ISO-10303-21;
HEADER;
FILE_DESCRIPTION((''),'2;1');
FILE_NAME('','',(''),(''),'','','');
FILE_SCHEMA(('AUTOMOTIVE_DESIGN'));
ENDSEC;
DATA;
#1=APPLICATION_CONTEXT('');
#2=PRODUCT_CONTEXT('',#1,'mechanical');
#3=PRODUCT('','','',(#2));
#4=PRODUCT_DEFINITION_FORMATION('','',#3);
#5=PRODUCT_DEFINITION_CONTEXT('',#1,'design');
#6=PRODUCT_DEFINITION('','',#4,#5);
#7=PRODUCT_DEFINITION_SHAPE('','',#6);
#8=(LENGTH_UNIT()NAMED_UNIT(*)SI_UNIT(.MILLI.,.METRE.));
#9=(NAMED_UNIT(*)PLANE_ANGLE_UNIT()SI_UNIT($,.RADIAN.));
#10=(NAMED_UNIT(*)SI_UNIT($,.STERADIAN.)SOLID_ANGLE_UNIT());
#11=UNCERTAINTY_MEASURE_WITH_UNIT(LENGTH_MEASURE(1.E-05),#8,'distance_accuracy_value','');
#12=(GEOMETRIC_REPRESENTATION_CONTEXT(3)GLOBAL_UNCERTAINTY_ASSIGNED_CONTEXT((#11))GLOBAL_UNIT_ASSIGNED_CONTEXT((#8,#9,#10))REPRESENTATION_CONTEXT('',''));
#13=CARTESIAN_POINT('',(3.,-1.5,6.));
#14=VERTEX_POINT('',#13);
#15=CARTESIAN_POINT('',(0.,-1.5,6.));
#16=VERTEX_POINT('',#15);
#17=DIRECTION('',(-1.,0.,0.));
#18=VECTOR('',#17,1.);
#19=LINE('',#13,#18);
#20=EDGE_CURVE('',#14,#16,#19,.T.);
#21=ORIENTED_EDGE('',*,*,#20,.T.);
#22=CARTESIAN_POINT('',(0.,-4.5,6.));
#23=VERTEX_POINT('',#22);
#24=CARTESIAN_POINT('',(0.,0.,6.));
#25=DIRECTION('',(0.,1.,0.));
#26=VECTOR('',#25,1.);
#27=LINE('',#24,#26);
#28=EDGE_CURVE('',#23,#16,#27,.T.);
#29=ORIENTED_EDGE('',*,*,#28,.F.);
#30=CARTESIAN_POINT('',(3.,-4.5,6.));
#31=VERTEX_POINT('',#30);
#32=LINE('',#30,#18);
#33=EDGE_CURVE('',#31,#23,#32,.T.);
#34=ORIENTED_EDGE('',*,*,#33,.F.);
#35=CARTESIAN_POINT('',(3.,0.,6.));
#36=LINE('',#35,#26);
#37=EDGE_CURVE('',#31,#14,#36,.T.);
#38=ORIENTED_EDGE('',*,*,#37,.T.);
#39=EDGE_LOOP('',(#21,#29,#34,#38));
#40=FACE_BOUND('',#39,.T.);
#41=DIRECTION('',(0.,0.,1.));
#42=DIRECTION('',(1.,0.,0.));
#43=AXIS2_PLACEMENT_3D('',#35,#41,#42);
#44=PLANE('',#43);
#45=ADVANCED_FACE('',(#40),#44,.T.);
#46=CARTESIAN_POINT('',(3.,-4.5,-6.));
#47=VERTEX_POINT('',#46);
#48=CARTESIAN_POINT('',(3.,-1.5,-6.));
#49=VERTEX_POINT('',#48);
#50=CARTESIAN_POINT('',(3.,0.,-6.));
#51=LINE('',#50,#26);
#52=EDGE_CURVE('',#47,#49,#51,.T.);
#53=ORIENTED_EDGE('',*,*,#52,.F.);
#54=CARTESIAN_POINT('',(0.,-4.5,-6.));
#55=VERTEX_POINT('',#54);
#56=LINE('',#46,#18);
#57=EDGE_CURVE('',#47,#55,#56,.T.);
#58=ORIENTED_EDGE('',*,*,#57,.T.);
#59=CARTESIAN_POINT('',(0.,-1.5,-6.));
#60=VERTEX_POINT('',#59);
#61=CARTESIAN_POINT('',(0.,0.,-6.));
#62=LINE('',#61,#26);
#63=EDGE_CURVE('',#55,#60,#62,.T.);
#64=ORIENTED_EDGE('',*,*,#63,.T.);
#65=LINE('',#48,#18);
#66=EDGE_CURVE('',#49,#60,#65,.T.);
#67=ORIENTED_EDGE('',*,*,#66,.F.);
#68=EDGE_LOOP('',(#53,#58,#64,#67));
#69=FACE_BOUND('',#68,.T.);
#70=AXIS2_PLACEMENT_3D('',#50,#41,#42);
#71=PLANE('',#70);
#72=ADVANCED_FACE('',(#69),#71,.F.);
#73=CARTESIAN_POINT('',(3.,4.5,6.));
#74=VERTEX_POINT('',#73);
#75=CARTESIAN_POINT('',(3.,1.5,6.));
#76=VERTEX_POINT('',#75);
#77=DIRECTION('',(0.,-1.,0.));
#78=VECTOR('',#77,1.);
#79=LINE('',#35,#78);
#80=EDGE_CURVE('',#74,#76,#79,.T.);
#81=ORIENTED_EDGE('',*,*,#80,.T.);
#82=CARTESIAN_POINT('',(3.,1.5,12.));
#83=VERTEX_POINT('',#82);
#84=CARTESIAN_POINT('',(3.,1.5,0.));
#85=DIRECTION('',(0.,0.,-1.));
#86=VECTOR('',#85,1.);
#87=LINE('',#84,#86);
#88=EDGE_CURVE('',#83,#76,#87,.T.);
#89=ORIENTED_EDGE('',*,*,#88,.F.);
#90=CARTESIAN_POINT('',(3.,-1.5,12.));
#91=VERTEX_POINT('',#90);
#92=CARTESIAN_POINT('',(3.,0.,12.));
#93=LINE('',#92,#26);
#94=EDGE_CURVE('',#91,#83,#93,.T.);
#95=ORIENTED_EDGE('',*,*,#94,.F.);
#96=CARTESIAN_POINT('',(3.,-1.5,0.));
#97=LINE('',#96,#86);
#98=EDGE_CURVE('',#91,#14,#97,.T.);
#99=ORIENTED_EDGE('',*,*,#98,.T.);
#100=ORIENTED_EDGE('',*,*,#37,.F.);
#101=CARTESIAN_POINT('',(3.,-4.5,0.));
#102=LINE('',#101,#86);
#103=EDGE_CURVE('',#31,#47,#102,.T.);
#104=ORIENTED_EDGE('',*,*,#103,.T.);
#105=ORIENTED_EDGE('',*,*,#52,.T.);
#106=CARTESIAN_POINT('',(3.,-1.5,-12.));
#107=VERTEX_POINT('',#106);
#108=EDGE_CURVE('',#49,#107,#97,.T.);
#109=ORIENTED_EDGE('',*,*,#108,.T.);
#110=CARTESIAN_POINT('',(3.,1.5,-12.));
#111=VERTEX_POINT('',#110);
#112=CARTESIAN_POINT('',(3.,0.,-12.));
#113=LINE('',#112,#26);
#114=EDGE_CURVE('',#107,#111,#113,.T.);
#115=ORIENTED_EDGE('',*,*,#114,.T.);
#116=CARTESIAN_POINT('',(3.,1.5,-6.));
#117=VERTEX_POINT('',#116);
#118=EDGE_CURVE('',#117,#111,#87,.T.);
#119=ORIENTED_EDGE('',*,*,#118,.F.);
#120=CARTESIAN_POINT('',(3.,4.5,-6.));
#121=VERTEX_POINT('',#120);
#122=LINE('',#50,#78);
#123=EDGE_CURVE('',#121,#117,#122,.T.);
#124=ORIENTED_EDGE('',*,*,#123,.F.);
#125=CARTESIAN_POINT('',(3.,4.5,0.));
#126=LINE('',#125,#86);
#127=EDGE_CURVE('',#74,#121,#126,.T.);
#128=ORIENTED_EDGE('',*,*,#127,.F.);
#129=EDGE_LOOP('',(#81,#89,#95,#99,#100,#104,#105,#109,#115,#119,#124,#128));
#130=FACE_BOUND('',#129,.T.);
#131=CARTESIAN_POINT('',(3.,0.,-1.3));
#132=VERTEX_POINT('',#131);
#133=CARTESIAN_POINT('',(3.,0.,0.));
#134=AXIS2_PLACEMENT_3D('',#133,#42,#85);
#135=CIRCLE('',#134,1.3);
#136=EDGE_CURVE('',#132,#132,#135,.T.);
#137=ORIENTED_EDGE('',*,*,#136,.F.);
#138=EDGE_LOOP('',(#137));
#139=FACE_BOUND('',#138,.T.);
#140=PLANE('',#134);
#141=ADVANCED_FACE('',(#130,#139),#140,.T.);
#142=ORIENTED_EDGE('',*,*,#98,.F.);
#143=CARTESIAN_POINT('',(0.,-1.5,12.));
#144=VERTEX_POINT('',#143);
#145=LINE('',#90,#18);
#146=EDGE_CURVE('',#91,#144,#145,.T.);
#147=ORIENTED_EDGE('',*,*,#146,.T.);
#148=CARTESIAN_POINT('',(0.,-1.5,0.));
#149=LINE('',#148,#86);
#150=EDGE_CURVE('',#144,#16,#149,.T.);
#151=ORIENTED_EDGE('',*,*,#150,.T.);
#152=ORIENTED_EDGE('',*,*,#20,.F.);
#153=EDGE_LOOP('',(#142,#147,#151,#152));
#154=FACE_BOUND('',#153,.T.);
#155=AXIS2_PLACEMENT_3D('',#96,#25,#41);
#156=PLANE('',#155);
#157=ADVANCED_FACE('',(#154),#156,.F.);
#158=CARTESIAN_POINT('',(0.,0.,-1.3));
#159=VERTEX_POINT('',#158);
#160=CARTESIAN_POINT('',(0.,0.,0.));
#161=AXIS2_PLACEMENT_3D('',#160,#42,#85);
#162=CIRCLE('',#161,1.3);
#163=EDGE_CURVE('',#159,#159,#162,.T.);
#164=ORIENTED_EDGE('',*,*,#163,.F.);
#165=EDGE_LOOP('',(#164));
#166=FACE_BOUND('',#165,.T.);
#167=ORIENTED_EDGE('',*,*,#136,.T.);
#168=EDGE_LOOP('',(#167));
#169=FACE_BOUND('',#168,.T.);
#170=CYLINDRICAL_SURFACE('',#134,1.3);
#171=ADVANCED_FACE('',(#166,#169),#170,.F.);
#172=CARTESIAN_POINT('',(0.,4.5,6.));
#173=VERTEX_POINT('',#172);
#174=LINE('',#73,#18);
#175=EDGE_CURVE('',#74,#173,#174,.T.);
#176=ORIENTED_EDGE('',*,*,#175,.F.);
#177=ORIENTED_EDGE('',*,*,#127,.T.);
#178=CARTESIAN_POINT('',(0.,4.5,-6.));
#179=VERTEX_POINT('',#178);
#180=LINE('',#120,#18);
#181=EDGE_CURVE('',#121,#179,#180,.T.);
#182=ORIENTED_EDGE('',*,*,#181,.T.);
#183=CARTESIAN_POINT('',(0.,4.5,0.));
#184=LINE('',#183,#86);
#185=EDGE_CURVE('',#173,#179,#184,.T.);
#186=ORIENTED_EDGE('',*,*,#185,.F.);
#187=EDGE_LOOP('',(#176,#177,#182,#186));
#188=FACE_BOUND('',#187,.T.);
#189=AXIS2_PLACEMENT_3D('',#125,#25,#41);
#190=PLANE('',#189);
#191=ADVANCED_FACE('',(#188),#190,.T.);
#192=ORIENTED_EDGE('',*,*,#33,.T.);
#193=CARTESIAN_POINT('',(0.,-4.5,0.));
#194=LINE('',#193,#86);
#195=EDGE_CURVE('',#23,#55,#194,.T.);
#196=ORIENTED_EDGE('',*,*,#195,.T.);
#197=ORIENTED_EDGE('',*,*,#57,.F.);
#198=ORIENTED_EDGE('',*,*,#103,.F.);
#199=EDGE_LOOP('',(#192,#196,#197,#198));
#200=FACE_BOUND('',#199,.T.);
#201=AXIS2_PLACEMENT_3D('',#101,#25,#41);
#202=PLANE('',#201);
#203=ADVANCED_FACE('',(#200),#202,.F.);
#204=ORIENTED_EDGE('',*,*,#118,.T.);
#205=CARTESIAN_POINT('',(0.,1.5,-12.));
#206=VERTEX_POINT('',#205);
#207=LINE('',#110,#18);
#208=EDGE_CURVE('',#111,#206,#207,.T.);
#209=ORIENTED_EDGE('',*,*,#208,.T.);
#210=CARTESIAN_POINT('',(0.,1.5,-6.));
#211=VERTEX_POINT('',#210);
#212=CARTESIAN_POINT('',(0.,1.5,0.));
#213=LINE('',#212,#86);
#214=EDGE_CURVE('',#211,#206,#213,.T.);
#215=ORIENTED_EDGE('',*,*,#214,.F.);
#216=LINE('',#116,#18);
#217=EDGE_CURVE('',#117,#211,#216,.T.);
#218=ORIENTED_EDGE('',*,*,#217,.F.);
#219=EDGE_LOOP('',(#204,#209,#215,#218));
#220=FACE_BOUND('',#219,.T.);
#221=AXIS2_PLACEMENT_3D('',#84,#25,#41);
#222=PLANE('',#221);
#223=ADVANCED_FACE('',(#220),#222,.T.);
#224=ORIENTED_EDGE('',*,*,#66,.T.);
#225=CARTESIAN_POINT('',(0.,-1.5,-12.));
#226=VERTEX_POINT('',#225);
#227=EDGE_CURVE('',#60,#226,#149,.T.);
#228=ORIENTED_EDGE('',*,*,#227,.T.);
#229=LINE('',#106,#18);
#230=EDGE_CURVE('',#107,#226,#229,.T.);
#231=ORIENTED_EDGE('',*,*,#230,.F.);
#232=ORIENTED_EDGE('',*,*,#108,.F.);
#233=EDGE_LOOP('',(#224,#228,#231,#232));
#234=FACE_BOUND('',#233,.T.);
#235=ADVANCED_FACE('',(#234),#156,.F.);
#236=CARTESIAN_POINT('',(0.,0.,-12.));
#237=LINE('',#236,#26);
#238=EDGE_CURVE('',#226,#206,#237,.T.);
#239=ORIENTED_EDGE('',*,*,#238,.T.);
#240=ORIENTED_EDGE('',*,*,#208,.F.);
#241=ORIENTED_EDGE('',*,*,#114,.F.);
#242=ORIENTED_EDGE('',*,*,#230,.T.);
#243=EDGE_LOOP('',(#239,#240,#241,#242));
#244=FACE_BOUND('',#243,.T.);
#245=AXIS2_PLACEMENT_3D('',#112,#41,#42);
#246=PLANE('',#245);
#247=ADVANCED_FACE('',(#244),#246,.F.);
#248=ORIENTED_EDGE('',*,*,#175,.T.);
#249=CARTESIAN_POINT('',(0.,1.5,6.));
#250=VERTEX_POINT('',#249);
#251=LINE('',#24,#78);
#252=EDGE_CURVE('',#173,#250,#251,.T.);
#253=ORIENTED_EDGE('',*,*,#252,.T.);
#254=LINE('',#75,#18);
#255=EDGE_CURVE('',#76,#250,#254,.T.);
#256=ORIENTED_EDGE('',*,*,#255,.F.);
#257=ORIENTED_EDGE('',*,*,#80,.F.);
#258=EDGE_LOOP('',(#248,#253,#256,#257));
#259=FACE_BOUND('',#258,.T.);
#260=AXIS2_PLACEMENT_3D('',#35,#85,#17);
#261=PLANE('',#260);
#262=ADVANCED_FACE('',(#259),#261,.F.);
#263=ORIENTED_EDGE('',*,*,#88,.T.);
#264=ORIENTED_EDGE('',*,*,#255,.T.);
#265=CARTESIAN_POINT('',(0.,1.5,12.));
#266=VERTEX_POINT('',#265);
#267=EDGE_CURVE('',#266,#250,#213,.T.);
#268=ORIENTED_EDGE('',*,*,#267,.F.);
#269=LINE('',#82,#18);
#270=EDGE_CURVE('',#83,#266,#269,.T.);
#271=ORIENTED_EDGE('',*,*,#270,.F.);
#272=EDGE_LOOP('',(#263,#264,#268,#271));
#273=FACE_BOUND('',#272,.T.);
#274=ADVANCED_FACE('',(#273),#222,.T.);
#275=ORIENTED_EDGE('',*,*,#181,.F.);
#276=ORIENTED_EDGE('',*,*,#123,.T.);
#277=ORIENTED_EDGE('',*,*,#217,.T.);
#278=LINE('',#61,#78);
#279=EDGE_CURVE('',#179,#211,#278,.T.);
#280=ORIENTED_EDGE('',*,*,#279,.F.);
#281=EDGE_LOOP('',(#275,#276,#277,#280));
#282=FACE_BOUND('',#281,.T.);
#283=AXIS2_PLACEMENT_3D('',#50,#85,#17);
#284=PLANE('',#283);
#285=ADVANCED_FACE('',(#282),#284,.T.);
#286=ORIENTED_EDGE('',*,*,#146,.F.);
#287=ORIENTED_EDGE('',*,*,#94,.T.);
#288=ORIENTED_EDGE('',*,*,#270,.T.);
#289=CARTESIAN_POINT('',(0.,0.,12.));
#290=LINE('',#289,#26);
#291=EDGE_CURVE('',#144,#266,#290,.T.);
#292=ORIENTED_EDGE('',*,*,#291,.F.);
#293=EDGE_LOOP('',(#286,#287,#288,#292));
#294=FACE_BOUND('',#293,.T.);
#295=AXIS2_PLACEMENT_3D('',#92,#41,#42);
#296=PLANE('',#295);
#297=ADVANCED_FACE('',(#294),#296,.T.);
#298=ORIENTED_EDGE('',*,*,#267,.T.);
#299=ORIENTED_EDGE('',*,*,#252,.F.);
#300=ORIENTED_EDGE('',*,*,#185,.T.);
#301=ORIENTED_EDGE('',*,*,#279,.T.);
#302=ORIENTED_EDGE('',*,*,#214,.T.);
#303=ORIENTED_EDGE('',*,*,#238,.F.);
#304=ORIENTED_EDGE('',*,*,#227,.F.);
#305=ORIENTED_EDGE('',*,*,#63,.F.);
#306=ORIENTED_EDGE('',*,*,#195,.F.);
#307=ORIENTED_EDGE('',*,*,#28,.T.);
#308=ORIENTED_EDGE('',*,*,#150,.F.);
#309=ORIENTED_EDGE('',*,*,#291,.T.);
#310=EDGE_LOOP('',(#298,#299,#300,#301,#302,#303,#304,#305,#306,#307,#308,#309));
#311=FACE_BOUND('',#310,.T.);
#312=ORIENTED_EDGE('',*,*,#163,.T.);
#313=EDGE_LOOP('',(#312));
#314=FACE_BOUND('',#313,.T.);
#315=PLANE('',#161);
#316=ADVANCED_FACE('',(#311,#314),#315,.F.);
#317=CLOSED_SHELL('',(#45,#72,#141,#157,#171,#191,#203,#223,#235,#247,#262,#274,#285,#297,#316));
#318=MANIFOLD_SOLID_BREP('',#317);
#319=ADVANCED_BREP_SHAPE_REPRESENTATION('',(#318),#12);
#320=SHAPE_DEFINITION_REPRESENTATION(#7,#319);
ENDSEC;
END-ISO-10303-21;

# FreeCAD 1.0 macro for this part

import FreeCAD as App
import Part
import Sketcher
from FreeCAD import Vector
Q = App.Units.Quantity


def add_polygon(sketch, points):
    """Adds a closed chain of lines whose ends are joined by coincident constraints."""
    first, n = sketch.GeometryCount, len(points)
    for a, b in zip(points, points[1:] + points[:1]):
        sketch.addGeometry(Part.LineSegment(App.Vector(*a, 0), App.Vector(*b, 0)), False)
    for i in range(n):
        sketch.addConstraint(Sketcher.Constraint("Coincident", first + i, 2, first + (i + 1) % n, 1))

doc = App.newDocument("Part")
body = doc.addObject("PartDesign::Body", "Body")

# Sketch on YZ plane
sketch1 = body.newObject("Sketcher::SketchObject", "Sketch")
sketch1.AttachmentSupport = (doc.getObject("YZ_Plane"), [""])
sketch1.MapMode = "FlatFace"
add_polygon(sketch1, [(4.5, 6), (1.5, 6), (1.5, 12), (-1.5, 12), (-1.5, 6), (-4.5, 6), (-4.5, -6), (-1.5, -6), (-1.5, -12), (1.5, -12), (1.5, -6), (4.5, -6)])  # lines 0-11
sketch1.addConstraint(Sketcher.Constraint("Horizontal", 0))
sketch1.addConstraint(Sketcher.Constraint("Vertical", 1))
sketch1.addConstraint(Sketcher.Constraint("Horizontal", 2))
sketch1.addConstraint(Sketcher.Constraint("Vertical", 3))
sketch1.addConstraint(Sketcher.Constraint("Horizontal", 4))
sketch1.addConstraint(Sketcher.Constraint("Vertical", 5))
sketch1.addConstraint(Sketcher.Constraint("Horizontal", 6))
sketch1.addConstraint(Sketcher.Constraint("Vertical", 7))
sketch1.addConstraint(Sketcher.Constraint("Horizontal", 8))
sketch1.addConstraint(Sketcher.Constraint("Vertical", 9))
sketch1.addConstraint(Sketcher.Constraint("Horizontal", 10))
sketch1.addConstraint(Sketcher.Constraint("Vertical", 11))
sketch1.addConstraint(Sketcher.Constraint("Symmetric", 0, 2, 6, 2, -1, 1))
sketch1.addConstraint(Sketcher.Constraint("Symmetric", 2, 2, 8, 2, -1, 1))
sketch1.addConstraint(Sketcher.Constraint("Symmetric", 4, 2, 10, 2, -1, 1))
sketch1.addConstraint(Sketcher.Constraint("Symmetric", 0, 2, 3, 2, -2))
sketch1.addConstraint(Sketcher.Constraint("Equal", 0, 2))
sketch1.addConstraint(Sketcher.Constraint("DistanceX", 0, 2, 0, 1, Q("3 mm")))
sketch1.addConstraint(Sketcher.Constraint("DistanceY", 1, 1, 1, 2, Q("6 mm")))
sketch1.addConstraint(Sketcher.Constraint("DistanceY", 5, 2, 5, 1, Q("12 mm")))
pad1 = body.newObject("PartDesign::Pad", "Pad")
pad1.Profile = sketch1
pad1.Length = 3

# Sketch on YZ plane
sketch2 = body.newObject("Sketcher::SketchObject", "Sketch001")
sketch2.AttachmentSupport = (doc.getObject("YZ_Plane"), [""])
sketch2.MapMode = "FlatFace"
sketch2.AttachmentOffset = App.Placement(Vector(0, 0, 3), App.Rotation())
sketch2.addGeometry(Part.Circle(Vector(0, 0, 0), Vector(0, 0, 1), 1.3), False)
sketch2.addConstraint(Sketcher.Constraint("Coincident", 0, 3, -1, 1))
sketch2.addConstraint(Sketcher.Constraint("Diameter", 0, Q("2.6 mm")))
doc.recompute()
hole = body.newObject("PartDesign::Hole", "Hole")
hole.Profile = sketch2
hole.ThreadType = "None"
hole.Diameter = 2.6
hole.DepthType = "ThroughAll"

doc.recompute()
